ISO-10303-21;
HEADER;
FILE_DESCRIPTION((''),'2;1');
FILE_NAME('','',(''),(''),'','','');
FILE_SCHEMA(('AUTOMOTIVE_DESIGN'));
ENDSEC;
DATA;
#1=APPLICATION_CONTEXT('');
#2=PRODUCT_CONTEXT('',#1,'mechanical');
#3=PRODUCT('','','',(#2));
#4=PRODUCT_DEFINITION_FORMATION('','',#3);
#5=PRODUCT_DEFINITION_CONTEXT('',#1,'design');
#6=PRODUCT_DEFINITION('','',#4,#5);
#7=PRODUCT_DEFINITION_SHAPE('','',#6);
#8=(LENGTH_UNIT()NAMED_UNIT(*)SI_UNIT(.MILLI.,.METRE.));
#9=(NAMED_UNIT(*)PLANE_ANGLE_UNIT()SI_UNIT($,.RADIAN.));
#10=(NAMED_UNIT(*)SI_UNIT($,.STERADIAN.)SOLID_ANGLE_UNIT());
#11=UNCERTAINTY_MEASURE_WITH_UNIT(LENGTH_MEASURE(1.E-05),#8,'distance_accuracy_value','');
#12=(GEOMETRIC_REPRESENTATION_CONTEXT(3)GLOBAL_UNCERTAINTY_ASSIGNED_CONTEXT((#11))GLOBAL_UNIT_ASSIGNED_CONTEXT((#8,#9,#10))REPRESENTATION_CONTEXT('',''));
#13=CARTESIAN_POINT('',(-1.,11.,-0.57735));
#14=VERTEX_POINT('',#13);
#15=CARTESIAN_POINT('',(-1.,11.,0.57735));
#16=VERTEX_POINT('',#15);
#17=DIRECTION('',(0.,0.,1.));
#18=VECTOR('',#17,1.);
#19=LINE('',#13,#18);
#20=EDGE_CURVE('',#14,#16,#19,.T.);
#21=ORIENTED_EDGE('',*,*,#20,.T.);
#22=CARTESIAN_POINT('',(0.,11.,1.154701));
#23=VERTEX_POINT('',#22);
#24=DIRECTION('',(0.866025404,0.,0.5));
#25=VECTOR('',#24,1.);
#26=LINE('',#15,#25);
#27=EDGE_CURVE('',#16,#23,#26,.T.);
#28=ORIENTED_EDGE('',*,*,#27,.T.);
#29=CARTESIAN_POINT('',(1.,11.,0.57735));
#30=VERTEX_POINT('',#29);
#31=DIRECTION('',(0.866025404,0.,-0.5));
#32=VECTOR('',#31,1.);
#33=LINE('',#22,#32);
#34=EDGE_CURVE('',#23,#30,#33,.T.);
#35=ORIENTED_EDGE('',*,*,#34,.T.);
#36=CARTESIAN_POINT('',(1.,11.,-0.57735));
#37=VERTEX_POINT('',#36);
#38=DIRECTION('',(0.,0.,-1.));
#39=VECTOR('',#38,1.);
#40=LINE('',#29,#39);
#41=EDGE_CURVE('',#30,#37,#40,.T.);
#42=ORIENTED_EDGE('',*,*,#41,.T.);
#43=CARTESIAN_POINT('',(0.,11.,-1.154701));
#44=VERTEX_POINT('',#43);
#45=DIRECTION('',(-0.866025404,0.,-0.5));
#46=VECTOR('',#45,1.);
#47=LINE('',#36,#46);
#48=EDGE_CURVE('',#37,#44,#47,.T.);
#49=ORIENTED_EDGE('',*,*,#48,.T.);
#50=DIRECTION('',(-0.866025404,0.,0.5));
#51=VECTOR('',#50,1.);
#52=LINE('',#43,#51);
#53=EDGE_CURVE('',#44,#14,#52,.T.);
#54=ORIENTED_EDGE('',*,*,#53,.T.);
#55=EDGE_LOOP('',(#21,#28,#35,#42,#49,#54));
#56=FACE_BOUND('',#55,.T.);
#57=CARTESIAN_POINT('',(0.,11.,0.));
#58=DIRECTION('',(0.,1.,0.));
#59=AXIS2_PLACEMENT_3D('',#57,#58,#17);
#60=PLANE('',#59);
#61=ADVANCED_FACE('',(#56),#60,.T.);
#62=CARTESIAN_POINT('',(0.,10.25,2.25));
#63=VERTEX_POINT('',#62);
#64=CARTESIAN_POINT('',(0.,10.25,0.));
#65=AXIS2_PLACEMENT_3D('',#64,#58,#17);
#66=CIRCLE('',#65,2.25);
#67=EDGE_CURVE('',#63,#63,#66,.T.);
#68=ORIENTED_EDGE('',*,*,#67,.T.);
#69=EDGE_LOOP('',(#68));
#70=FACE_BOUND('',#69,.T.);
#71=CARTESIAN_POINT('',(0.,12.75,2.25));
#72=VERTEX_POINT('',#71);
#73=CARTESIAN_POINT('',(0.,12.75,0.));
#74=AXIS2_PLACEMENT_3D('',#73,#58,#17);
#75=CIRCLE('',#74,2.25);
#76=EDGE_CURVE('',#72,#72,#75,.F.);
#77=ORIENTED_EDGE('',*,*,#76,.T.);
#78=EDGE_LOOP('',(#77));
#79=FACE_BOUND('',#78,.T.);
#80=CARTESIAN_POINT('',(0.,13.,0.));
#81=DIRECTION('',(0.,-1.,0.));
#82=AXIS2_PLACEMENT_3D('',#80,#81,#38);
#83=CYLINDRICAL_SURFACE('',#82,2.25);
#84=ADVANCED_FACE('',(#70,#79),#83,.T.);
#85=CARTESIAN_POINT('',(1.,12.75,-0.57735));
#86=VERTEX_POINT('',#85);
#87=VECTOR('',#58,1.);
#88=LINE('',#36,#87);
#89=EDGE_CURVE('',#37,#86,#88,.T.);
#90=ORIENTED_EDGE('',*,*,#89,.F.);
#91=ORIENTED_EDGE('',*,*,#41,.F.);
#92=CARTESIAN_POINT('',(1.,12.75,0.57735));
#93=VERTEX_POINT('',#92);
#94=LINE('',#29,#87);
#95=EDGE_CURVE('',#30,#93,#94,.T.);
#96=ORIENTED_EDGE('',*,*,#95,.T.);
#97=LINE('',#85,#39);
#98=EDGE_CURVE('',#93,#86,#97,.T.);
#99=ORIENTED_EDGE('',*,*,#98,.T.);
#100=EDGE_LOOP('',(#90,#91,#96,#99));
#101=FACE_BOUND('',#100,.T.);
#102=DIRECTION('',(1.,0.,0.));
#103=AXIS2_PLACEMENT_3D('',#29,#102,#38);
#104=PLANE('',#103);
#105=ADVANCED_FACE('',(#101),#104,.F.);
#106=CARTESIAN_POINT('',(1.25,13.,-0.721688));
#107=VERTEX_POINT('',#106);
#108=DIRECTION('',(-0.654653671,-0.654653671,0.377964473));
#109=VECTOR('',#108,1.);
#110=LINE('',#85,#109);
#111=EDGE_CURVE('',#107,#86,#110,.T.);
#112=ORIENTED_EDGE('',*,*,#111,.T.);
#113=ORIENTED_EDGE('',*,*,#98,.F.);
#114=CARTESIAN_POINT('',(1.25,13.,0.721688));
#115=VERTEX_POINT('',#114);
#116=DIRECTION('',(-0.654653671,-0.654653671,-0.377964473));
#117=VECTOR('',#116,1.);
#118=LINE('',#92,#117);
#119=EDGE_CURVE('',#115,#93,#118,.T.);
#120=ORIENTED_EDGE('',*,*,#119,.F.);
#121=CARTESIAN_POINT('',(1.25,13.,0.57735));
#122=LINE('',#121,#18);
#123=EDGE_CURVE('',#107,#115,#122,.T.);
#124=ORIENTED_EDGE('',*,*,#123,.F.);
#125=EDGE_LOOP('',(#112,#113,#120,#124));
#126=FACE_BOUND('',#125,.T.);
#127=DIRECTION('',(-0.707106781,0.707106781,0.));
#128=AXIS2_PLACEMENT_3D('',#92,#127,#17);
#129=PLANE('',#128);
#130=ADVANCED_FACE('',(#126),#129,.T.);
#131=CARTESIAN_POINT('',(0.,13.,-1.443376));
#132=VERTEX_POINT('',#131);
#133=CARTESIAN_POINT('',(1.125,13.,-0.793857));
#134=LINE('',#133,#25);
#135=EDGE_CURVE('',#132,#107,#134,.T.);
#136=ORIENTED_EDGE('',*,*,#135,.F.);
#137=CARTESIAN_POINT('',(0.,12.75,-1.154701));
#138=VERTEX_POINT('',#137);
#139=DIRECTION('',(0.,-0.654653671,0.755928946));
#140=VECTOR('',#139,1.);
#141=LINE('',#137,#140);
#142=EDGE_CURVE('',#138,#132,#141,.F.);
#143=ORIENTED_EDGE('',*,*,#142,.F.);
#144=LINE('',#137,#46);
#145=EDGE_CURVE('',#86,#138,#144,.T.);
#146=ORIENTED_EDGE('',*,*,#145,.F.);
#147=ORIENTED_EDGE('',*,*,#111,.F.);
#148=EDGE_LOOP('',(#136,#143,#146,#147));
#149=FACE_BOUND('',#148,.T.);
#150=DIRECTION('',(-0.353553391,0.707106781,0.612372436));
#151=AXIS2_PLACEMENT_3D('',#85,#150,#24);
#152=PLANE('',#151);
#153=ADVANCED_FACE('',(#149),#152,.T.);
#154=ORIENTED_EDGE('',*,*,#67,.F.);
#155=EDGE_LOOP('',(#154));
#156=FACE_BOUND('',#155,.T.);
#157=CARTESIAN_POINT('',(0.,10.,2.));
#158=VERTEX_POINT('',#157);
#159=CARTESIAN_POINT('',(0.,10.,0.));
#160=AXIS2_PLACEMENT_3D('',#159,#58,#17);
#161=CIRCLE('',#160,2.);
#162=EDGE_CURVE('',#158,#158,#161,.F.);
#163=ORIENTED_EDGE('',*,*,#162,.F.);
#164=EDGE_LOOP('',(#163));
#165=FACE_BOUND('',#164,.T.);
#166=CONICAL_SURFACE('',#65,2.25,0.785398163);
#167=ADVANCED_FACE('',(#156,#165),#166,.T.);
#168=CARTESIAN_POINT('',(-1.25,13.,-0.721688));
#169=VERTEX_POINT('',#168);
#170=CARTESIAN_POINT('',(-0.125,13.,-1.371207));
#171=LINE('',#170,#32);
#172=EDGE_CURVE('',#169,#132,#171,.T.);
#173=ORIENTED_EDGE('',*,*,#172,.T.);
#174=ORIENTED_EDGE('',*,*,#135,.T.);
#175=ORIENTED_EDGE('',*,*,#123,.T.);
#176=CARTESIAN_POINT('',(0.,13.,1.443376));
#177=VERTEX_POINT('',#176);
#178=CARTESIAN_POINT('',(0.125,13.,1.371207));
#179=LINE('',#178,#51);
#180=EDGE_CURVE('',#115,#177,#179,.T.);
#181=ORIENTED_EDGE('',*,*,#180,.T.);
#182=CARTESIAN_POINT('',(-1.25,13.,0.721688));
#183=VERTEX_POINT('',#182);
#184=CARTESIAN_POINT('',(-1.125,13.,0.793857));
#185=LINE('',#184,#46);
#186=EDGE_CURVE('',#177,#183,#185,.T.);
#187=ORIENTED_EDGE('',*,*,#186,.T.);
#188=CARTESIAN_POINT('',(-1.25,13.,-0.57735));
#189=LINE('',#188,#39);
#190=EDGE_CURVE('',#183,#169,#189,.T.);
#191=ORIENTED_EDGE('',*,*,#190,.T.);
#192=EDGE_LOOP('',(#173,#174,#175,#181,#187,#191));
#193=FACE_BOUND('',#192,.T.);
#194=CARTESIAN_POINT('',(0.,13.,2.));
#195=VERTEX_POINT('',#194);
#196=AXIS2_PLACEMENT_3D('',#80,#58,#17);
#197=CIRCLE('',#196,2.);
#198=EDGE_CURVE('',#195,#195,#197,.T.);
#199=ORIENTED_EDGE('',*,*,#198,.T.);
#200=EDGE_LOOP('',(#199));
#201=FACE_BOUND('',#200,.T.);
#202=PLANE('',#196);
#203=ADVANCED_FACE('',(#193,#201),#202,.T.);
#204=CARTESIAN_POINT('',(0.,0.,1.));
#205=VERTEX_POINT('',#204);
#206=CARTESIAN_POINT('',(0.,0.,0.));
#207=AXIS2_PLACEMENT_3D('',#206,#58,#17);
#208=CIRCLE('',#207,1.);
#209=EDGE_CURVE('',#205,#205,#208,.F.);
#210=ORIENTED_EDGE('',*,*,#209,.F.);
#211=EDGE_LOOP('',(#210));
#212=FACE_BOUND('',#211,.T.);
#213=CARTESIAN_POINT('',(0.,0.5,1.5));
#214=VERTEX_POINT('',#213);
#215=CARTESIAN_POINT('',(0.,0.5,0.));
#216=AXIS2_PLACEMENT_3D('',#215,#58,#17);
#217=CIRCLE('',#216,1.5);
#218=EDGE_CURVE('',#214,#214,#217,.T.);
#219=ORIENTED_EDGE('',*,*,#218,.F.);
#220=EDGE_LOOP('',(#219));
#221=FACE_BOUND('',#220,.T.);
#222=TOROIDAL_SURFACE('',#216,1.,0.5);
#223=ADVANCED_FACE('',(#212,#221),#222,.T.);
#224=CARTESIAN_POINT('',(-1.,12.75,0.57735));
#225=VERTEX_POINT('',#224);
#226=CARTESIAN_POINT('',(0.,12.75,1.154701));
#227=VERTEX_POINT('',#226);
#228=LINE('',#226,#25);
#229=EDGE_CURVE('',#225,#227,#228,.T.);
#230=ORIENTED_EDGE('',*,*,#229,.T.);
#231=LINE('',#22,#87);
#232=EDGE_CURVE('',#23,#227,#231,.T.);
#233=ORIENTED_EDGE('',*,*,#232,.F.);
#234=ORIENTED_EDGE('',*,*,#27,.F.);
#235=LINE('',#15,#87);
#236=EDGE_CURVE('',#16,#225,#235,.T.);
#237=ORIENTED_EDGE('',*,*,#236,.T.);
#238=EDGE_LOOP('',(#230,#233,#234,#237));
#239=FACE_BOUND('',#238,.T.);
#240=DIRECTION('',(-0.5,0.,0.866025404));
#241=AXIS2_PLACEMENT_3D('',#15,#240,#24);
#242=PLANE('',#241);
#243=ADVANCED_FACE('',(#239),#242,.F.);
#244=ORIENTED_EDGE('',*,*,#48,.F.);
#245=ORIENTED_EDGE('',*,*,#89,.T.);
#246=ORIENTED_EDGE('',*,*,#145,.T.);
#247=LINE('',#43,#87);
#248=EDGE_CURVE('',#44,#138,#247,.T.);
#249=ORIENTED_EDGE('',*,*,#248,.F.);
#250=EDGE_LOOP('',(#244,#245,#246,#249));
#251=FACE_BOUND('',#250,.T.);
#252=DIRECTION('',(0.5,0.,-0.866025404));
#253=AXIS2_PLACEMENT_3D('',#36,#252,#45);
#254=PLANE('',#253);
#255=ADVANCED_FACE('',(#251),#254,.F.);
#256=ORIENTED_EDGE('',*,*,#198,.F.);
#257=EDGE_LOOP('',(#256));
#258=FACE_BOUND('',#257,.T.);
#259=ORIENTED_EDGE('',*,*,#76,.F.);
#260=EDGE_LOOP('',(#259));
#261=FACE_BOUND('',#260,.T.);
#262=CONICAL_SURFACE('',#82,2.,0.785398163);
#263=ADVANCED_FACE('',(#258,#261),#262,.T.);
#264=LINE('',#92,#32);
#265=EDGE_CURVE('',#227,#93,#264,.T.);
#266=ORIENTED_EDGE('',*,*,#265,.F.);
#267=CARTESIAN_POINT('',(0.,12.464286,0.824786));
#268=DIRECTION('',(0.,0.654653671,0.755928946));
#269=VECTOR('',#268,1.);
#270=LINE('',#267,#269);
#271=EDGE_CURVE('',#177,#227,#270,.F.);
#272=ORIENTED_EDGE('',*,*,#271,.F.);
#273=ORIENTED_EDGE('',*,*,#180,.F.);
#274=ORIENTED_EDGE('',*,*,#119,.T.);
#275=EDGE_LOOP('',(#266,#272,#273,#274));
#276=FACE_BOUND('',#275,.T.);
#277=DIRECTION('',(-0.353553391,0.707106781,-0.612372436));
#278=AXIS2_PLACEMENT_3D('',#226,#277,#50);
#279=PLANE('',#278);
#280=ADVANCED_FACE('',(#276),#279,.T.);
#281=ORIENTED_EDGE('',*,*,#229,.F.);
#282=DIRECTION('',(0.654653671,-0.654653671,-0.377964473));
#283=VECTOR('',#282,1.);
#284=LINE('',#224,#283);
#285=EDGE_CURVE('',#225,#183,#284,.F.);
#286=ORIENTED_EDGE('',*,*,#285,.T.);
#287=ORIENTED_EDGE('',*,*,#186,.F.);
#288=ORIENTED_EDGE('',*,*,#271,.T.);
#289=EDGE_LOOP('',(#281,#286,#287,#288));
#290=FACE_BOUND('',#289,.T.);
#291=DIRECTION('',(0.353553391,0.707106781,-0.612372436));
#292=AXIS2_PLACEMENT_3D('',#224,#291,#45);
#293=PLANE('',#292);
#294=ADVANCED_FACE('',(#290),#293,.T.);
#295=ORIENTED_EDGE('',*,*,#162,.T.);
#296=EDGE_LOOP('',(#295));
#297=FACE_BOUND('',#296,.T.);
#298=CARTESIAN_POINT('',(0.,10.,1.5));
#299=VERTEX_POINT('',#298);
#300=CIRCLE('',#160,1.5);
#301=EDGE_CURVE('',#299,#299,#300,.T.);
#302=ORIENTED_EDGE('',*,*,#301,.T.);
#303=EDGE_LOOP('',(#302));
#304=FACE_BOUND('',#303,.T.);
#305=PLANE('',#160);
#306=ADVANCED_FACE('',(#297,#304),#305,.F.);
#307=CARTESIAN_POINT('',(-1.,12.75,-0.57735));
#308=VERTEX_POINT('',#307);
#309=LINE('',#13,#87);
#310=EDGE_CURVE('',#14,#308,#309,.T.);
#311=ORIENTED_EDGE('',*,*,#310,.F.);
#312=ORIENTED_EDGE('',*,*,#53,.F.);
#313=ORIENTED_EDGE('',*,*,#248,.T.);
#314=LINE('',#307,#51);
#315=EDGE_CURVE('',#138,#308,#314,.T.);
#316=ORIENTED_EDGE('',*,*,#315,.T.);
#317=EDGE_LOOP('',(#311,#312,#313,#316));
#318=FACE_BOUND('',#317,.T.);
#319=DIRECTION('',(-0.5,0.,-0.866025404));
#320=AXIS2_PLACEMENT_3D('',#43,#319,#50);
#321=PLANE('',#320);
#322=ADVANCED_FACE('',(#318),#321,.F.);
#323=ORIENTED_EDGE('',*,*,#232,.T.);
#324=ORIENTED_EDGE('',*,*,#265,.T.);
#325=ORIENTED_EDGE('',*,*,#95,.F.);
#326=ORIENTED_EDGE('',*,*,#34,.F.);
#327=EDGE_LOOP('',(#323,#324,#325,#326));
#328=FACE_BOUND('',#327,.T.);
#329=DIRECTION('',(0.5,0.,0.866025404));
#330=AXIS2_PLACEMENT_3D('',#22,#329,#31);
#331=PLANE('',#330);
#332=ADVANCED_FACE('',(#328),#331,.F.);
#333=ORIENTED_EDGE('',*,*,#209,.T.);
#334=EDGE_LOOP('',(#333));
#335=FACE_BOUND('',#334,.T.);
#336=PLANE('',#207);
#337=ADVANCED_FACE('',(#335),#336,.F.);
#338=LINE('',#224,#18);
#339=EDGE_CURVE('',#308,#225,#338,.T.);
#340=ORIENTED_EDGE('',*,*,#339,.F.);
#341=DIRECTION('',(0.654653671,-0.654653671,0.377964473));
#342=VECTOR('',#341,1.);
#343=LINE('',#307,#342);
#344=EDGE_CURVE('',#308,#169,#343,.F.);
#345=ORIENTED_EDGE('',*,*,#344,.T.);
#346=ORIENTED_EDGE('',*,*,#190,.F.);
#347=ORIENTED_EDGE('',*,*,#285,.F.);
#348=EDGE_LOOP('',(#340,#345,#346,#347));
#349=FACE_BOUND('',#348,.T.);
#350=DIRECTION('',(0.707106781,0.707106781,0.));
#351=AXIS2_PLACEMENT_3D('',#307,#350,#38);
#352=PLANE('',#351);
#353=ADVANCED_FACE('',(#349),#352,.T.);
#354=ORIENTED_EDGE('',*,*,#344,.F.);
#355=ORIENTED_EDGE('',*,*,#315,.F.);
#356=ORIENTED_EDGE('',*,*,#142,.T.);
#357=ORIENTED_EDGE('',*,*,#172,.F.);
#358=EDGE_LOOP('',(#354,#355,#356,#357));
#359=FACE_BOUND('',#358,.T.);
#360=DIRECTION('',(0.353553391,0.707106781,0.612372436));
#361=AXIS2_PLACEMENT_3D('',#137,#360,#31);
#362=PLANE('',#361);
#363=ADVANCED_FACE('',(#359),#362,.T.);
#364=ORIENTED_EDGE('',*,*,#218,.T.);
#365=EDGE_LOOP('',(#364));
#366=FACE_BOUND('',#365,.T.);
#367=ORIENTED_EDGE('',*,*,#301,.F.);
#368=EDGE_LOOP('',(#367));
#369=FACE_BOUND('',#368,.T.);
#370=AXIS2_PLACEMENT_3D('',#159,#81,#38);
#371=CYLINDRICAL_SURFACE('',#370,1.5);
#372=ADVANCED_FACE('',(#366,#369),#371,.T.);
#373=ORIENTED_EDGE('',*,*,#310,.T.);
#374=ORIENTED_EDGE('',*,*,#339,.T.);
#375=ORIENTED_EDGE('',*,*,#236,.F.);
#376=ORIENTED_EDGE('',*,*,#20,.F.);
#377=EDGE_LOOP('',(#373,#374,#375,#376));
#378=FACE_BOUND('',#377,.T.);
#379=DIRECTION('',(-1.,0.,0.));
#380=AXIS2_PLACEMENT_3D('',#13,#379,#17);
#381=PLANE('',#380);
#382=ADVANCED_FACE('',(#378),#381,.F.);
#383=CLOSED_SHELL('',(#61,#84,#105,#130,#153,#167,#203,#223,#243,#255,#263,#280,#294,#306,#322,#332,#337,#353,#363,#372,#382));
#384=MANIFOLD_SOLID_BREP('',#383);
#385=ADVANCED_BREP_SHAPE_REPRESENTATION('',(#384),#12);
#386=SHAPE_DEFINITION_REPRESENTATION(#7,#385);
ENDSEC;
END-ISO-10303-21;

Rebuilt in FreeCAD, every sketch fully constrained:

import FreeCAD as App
import Part
import Sketcher
from FreeCAD import Vector
Q = App.Units.Quantity


def edges_at(feature, points):
    """Names of the edges that pass closest to the given points."""
    edges = feature.Shape.Edges
    near = lambda p: min(range(len(edges)), key=lambda i: edges[i].distToShape(Part.Vertex(*p))[0])
    return sorted({f"Edge{near(p) + 1}" for p in points})

doc = App.newDocument("Part")
params = doc.addObject("Spreadsheet::Sheet", "Params")
for row, (alias, value) in enumerate([
    ("sketch1_diameter", "3 mm"),
    ("pad1_length", "10 mm"),
    ("sketch2_diameter", "4.5 mm"),
    ("pad2_length", "3 mm"),
    ("pocket1_length", "2 mm"),
    ("chamfer_size", "0.25 mm"),
    ("fillet_radius", "0.5 mm"),
], start=1):
    params.set(f"A{row}", alias)
    params.set(f"B{row}", "=" + value)
    params.setAlias(f"B{row}", alias)

body = doc.addObject("PartDesign::Body", "Body")

sketch1 = body.newObject("Sketcher::SketchObject", "Sketch")
sketch1.AttachmentSupport = (doc.getObject("XZ_Plane"), [""])
sketch1.MapMode = "FlatFace"
sketch1.addGeometry(Part.Circle(Vector(0, 0, 0), Vector(0, 0, 1), 1.5), False)
sketch1.addConstraint([
    Sketcher.Constraint("Coincident", 0, 3, -1, 1),
    Sketcher.Constraint("Diameter", 0, Q("3 mm")),
])
sketch1.setExpression("Constraints[1]", "Params.sketch1_diameter")
pad1 = body.newObject("PartDesign::Pad", "Pad")
pad1.Profile = sketch1
pad1.setExpression("Length", "Params.pad1_length")
pad1.Reversed = True

sketch2 = body.newObject("Sketcher::SketchObject", "Sketch001")
sketch2.AttachmentSupport = (doc.getObject("XZ_Plane"), [""])
sketch2.MapMode = "FlatFace"
sketch2.AttachmentOffset = App.Placement(Vector(0, 0, -10), App.Rotation())
sketch2.addGeometry(Part.Circle(Vector(0, 0, 0), Vector(0, 0, 1), 2.25), False)
sketch2.addConstraint([
    Sketcher.Constraint("Coincident", 0, 3, -1, 1),
    Sketcher.Constraint("Diameter", 0, Q("4.5 mm")),
])
sketch2.setExpression("Constraints[1]", "Params.sketch2_diameter")
pad2 = body.newObject("PartDesign::Pad", "Pad001")
pad2.Profile = sketch2
pad2.setExpression("Length", "Params.pad2_length")
pad2.Reversed = True

sketch3 = body.newObject("Sketcher::SketchObject", "Sketch002")
sketch3.AttachmentSupport = (doc.getObject("XZ_Plane"), [""])
sketch3.MapMode = "FlatFace"
sketch3.AttachmentOffset = App.Placement(Vector(0, 0, -13), App.Rotation())
sketch3.addGeometry([
    Part.LineSegment(Vector(0, -1.154701, 0), Vector(-1, -0.57735, 0)),
    Part.LineSegment(Vector(-1, -0.57735, 0), Vector(-1, 0.57735, 0)),
    Part.LineSegment(Vector(-1, 0.57735, 0), Vector(0, 1.154701, 0)),
    Part.LineSegment(Vector(0, 1.154701, 0), Vector(1, 0.57735, 0)),
    Part.LineSegment(Vector(1, 0.57735, 0), Vector(1, -0.57735, 0)),
    Part.LineSegment(Vector(1, -0.57735, 0), Vector(0, -1.154701, 0)),
], False)
sketch3.addConstraint([
    Sketcher.Constraint("Coincident", 0, 2, 1, 1),
    Sketcher.Constraint("Coincident", 1, 2, 2, 1),
    Sketcher.Constraint("Coincident", 2, 2, 3, 1),
    Sketcher.Constraint("Coincident", 3, 2, 4, 1),
    Sketcher.Constraint("Coincident", 4, 2, 5, 1),
    Sketcher.Constraint("Coincident", 5, 2, 0, 1),
    Sketcher.Constraint("Vertical", 1),
    Sketcher.Constraint("Vertical", 4),
    Sketcher.Constraint("Symmetric", 0, 2, 3, 2, -1, 1),
    Sketcher.Constraint("Symmetric", 2, 2, 5, 2, -1, 1),
    Sketcher.Constraint("PointOnObject", 2, 2, -2),
    Sketcher.Constraint("Parallel", 2, 5),
    Sketcher.Constraint("Horizontal", 1, 2, 3, 2),
    Sketcher.Constraint("Angle", 0, Q("150 deg")),
    Sketcher.Constraint("DistanceX", 0, 2, -1, 1, Q("1 mm")),
    Sketcher.Constraint("DistanceY", 1, 1, 1, 2, Q("1.154701 mm")),
])
pocket1 = body.newObject("PartDesign::Pocket", "Pocket")
pocket1.Profile = sketch3
pocket1.setExpression("Length", "Params.pocket1_length")
pocket1.Reversed = True
doc.recompute()

chamfer = body.newObject("PartDesign::Chamfer", "Chamfer")
chamfer.Base = (pocket1, edges_at(pocket1, [
    (0.5, 13, -0.866),
    (-0.5, 13, -0.866),
    (-1, 13, 0),
    (-0.5, 13, 0.866),
    (0.5, 13, 0.866),
    (1, 13, 0),
    (0, 10, -2.25),
    (0, 13, -2.25),
]))
chamfer.setExpression("Size", "Params.chamfer_size")
doc.recompute()

fillet = body.newObject("PartDesign::Fillet", "Fillet")
fillet.Base = (chamfer, edges_at(chamfer, [(0, 0, -1.5)]))
fillet.setExpression("Radius", "Params.fillet_radius")

doc.recompute()
